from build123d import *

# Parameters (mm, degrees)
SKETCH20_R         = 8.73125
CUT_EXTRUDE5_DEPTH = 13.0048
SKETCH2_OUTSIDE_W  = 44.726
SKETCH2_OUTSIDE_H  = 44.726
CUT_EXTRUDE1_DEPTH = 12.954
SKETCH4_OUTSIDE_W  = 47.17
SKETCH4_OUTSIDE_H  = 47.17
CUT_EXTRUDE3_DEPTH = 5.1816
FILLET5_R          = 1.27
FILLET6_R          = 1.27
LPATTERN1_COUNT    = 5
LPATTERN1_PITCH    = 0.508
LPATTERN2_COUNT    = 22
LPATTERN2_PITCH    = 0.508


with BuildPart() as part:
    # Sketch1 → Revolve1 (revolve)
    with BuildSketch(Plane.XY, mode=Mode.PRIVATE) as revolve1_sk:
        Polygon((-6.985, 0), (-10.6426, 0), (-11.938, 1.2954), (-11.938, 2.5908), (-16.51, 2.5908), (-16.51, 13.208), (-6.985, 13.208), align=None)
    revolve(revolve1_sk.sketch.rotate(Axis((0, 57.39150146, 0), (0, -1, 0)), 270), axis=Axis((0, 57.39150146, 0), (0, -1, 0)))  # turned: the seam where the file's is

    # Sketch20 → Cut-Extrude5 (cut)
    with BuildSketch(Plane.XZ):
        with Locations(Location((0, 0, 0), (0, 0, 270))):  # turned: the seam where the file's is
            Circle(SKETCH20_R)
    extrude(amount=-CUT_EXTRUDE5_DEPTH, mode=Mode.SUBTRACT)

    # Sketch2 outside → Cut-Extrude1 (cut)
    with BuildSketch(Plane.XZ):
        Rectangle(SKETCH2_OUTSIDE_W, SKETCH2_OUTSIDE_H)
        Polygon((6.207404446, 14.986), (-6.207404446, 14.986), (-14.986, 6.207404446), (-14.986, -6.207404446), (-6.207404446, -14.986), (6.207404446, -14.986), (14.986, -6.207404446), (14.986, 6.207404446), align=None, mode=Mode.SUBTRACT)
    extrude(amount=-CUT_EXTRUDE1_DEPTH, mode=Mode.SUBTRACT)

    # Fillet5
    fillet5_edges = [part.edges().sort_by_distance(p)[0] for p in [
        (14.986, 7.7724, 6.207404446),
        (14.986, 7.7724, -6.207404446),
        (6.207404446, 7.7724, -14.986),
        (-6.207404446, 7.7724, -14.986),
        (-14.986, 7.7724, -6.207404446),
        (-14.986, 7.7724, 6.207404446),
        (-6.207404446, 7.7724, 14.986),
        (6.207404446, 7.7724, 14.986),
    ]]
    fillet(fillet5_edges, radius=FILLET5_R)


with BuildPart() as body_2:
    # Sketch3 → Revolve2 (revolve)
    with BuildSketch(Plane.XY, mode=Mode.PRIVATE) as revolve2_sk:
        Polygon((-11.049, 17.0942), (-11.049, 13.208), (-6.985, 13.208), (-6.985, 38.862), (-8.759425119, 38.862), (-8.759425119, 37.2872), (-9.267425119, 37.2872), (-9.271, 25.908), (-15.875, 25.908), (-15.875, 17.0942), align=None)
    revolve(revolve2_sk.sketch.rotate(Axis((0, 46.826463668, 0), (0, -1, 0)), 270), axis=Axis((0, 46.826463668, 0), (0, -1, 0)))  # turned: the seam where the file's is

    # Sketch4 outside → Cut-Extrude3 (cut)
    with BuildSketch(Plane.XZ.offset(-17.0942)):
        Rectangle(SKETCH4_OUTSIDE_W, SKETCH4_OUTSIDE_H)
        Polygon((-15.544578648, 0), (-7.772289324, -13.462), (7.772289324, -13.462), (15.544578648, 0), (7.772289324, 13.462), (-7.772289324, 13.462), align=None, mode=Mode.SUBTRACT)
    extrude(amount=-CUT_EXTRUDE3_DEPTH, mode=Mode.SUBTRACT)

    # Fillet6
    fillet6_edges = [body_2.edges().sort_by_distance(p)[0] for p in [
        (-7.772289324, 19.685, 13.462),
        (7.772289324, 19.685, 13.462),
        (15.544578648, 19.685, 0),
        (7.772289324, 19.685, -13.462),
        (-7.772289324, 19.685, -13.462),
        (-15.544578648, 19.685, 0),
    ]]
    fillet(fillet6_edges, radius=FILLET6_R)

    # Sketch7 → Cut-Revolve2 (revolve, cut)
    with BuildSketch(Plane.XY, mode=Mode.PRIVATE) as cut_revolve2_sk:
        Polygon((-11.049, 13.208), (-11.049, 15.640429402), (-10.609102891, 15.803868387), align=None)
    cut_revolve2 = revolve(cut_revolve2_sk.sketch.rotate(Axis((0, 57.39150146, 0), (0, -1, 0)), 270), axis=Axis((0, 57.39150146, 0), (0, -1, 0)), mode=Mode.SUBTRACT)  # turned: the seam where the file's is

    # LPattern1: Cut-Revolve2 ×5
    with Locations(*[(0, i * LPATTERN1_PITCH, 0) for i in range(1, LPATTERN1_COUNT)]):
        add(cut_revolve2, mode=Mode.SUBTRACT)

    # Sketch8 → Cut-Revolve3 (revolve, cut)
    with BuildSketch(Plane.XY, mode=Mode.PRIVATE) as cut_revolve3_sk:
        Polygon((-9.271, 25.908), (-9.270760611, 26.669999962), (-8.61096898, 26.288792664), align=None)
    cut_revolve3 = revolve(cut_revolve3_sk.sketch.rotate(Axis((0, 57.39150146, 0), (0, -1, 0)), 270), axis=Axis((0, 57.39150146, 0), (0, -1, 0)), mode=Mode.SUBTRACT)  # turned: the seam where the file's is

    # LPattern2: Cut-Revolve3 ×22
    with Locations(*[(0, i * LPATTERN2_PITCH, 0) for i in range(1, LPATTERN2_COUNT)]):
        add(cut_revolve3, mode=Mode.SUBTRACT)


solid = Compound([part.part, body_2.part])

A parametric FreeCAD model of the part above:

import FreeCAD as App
import Part
import Sketcher

V = App.Vector
Q = App.Units.Quantity


def edges_at(feature, points):
    """Names of the edges that pass closest to the given points."""
    edges = feature.Shape.Edges
    near = lambda p: min(range(len(edges)), key=lambda i: edges[i].distToShape(Part.Vertex(*p))[0])
    return sorted({f"Edge{near(p) + 1}" for p in points})


def add_polygon(sketch, points):
    """Adds a closed chain of lines whose ends are joined by coincident constraints."""
    first, n = sketch.GeometryCount, len(points)
    for a, b in zip(points, points[1:] + points[:1]):
        sketch.addGeometry(Part.LineSegment(App.Vector(*a, 0), App.Vector(*b, 0)), False)
    for i in range(n):
        sketch.addConstraint(Sketcher.Constraint("Coincident", first + i, 2, first + (i + 1) % n, 1))

doc = App.newDocument("Part")
body = doc.addObject("PartDesign::Body", "Body")

sketch1 = body.newObject("Sketcher::SketchObject", "Sketch")
sketch1.AttachmentSupport = (doc.getObject("XY_Plane"), [""])
sketch1.MapMode = "FlatFace"
add_polygon(sketch1, [(-10.6426, 0), (-6.985, 0), (-6.985, 13.208), (-16.51, 13.208), (-16.51, 2.5908), (-11.938, 2.5908), (-11.938, 1.2954)])
sketch1.addConstraint(Sketcher.Constraint("Horizontal", 0))
sketch1.addConstraint(Sketcher.Constraint("Vertical", 1))
sketch1.addConstraint(Sketcher.Constraint("Horizontal", 2))
sketch1.addConstraint(Sketcher.Constraint("Vertical", 3))
sketch1.addConstraint(Sketcher.Constraint("Horizontal", 4))
sketch1.addConstraint(Sketcher.Constraint("Vertical", 5))
sketch1.addConstraint(Sketcher.Constraint("PointOnObject", 0, 2, -1))
sketch1.addConstraint(Sketcher.Constraint("Angle", 6, Q("-45 deg")))
sketch1.addConstraint(Sketcher.Constraint("DistanceX", 4, 1, 4, 2, Q("0.18 in")))
sketch1.addConstraint(Sketcher.Constraint("DistanceY", 1, 1, 1, 2, Q("0.52 in")))
sketch1.addConstraint(Sketcher.Constraint("DistanceX", 0, 1, 0, 2, Q("0.144 in")))
sketch1.addConstraint(Sketcher.Constraint("DistanceX", 2, 2, 2, 1, Q("0.375 in")))
sketch1.addConstraint(Sketcher.Constraint("DistanceY", 3, 2, 3, 1, Q("0.418 in")))
sketch1.addConstraint(Sketcher.Constraint("DistanceX", 2, 2, -1, 1, Q("0.65 in")))
revolution = body.newObject("PartDesign::Revolution", "Revolution")
revolution.Profile = sketch1
revolution.ReferenceAxis = (sketch1, ["V_Axis"])
revolution.Angle = 360

sketch2 = body.newObject("Sketcher::SketchObject", "Sketch001")
sketch2.AttachmentSupport = (doc.getObject("XZ_Plane"), [""])
sketch2.MapMode = "FlatFace"
sketch2.addGeometry(Part.Circle(V(0, 0, 0), V(0, 0, 1), 8.73125), False)
sketch2.addConstraint(Sketcher.Constraint("Coincident", 0, 3, -1, 1))
sketch2.addConstraint(Sketcher.Constraint("Diameter", 0, Q("0.6875 in")))
pocket1 = body.newObject("PartDesign::Pocket", "Pocket")
pocket1.Profile = sketch2
pocket1.Length = Q("0.512 in")

sketch3 = body.newObject("Sketcher::SketchObject", "Sketch002")
sketch3.AttachmentSupport = (doc.getObject("XZ_Plane"), [""])
sketch3.MapMode = "FlatFace"
add_polygon(sketch3, [(-22.363, 22.363), (-22.363, -22.363), (22.363, -22.363), (22.363, 22.363)])
add_polygon(sketch3, [(-6.207404, 14.986), (6.207404, 14.986), (14.986, 6.207404), (14.986, -6.207404), (6.207404, -14.986), (-6.207404, -14.986), (-14.986, -6.207404), (-14.986, 6.207404)])
sketch3.addConstraint(Sketcher.Constraint("Vertical", 0))
sketch3.addConstraint(Sketcher.Constraint("Horizontal", 1))
sketch3.addConstraint(Sketcher.Constraint("Vertical", 2))
sketch3.addConstraint(Sketcher.Constraint("Horizontal", 3))
sketch3.addConstraint(Sketcher.Constraint("Horizontal", 4))
sketch3.addConstraint(Sketcher.Constraint("Vertical", 6))
sketch3.addConstraint(Sketcher.Constraint("Horizontal", 8))
sketch3.addConstraint(Sketcher.Constraint("Vertical", 10))
sketch3.addConstraint(Sketcher.Constraint("Symmetric", 0, 2, 2, 2, -1, 1))
sketch3.addConstraint(Sketcher.Constraint("Symmetric", 4, 2, 8, 2, -1, 1))
sketch3.addConstraint(Sketcher.Constraint("Symmetric", 5, 2, 9, 2, -1, 1))
sketch3.addConstraint(Sketcher.Constraint("Perpendicular", 5, 7))
sketch3.addConstraint(Sketcher.Constraint("Perpendicular", 9, 11))
sketch3.addConstraint(Sketcher.Constraint("Horizontal", 6, 2, 9, 2))
sketch3.addConstraint(Sketcher.Constraint("Horizontal", 5, 2, 10, 2))
sketch3.addConstraint(Sketcher.Constraint("Vertical", 4, 2, 7, 2))
sketch3.addConstraint(Sketcher.Constraint("Equal", 3, 0))
sketch3.addConstraint(Sketcher.Constraint("Equal", 8, 6))
sketch3.addConstraint(Sketcher.Constraint("DistanceY", -1, 1, 4, 2, Q("0.59 in")))
sketch3.addConstraint(Sketcher.Constraint("DistanceX", 1, 1, 1, 2, Q("44.726 mm")))
sketch3.addConstraint(Sketcher.Constraint("DistanceX", 4, 1, 4, 2, Q("12.414809 mm")))
pocket2 = body.newObject("PartDesign::Pocket", "Pocket001")
pocket2.Profile = sketch3
pocket2.Length = Q("0.51 in")
doc.recompute()

fillet = body.newObject("PartDesign::Fillet", "Fillet")
fillet.Base = (pocket2, edges_at(pocket2, [
    (14.986, 7.772, 6.207),
    (14.986, 7.772, -6.207),
    (6.207, 7.772, -14.986),
    (-6.207, 7.772, -14.986),
    (-14.986, 7.772, -6.207),
    (-14.986, 7.772, 6.207),
    (-6.207, 7.772, 14.986),
    (6.207, 7.772, 14.986),
]))
fillet.Radius = Q("0.05 in")
body2 = doc.addObject("PartDesign::Body", "Body001")

sketch4 = body2.newObject("Sketcher::SketchObject", "Sketch003")
sketch4.AttachmentSupport = (doc.getObject("XY_Plane001"), [""])
sketch4.MapMode = "FlatFace"
add_polygon(sketch4, [(-11.049, 17.0942), (-11.049, 13.208), (-6.985, 13.208), (-6.985, 38.862), (-8.759425, 38.862), (-8.759425, 37.2872), (-9.267425, 37.2872), (-9.271, 25.908), (-15.875, 25.908), (-15.875, 17.0942)])
sketch4.addConstraint(Sketcher.Constraint("Vertical", 0))
sketch4.addConstraint(Sketcher.Constraint("Horizontal", 1))
sketch4.addConstraint(Sketcher.Constraint("Vertical", 2))
sketch4.addConstraint(Sketcher.Constraint("Horizontal", 3))
sketch4.addConstraint(Sketcher.Constraint("Vertical", 4))
sketch4.addConstraint(Sketcher.Constraint("Horizontal", 5))
sketch4.addConstraint(Sketcher.Constraint("Horizontal", 7))
sketch4.addConstraint(Sketcher.Constraint("Vertical", 8))
sketch4.addConstraint(Sketcher.Constraint("Horizontal", 9))
sketch4.addConstraint(Sketcher.Constraint("DistanceX", 1, 1, 1, 2, Q("0.16 in")))
sketch4.addConstraint(Sketcher.Constraint("DistanceX", 5, 2, 5, 1, Q("0.02 in")))
sketch4.addConstraint(Sketcher.Constraint("DistanceX", 7, 2, 7, 1, Q("0.26 in")))
sketch4.addConstraint(Sketcher.Constraint("DistanceX", 9, 1, 9, 2, Q("0.19 in")))
sketch4.addConstraint(Sketcher.Constraint("DistanceY", 2, 1, 2, 2, Q("1.01 in")))
sketch4.addConstraint(Sketcher.Constraint("DistanceY", 0, 2, 6, 2, Q("0.5 in")))
sketch4.addConstraint(Sketcher.Constraint("DistanceY", 0, 2, 0, 1, Q("0.153 in")))
sketch4.addConstraint(Sketcher.Constraint("DistanceY", 4, 2, 4, 1, Q("0.062 in")))
sketch4.addConstraint(Sketcher.Constraint("DistanceY", -1, 1, 0, 2, Q("0.52 in")))
sketch4.addConstraint(Sketcher.Constraint("DistanceX", 0, 2, -1, 1, Q("0.435 in")))
sketch4.addConstraint(Sketcher.Constraint("DistanceX", 3, 2, 3, 1, Q("1.774425 mm")))
revolution2 = body2.newObject("PartDesign::Revolution", "Revolution001")
revolution2.Profile = sketch4
revolution2.ReferenceAxis = (sketch4, ["V_Axis"])
revolution2.Angle = 360

sketch5 = body2.newObject("Sketcher::SketchObject", "Sketch004")
sketch5.AttachmentSupport = (doc.getObject("XZ_Plane001"), [""])
sketch5.MapMode = "FlatFace"
sketch5.AttachmentOffset = App.Placement(V(0, 0, -0.673 * 25.4), App.Rotation())
add_polygon(sketch5, [(-23.585, 23.585), (-23.585, -23.585), (23.585, -23.585), (23.585, 23.585)])
add_polygon(sketch5, [(-7.772289, -13.462), (-15.544579, 0), (-7.772289, 13.462), (7.772289, 13.462), (15.544579, 0), (7.772289, -13.462)])
sketch5.addConstraint(Sketcher.Constraint("Vertical", 0))
sketch5.addConstraint(Sketcher.Constraint("Horizontal", 1))
sketch5.addConstraint(Sketcher.Constraint("Vertical", 2))
sketch5.addConstraint(Sketcher.Constraint("Horizontal", 3))
sketch5.addConstraint(Sketcher.Constraint("Horizontal", 6))
sketch5.addConstraint(Sketcher.Constraint("Horizontal", 9))
sketch5.addConstraint(Sketcher.Constraint("Symmetric", 0, 2, 2, 2, -1, 1))
sketch5.addConstraint(Sketcher.Constraint("Symmetric", 4, 2, 7, 2, -1, 1))
sketch5.addConstraint(Sketcher.Constraint("Symmetric", 5, 2, 8, 2, -1, 1))
sketch5.addConstraint(Sketcher.Constraint("PointOnObject", 4, 2, -1))
sketch5.addConstraint(Sketcher.Constraint("Parallel", 4, 7))
sketch5.addConstraint(Sketcher.Constraint("Vertical", 6, 2, 8, 2))
sketch5.addConstraint(Sketcher.Constraint("Equal", 3, 0))
sketch5.addConstraint(Sketcher.Constraint("Angle", 4, Q("120 deg")))
sketch5.addConstraint(Sketcher.Constraint("DistanceY", -1, 1, 5, 2, Q("0.53 in")))
sketch5.addConstraint(Sketcher.Constraint("DistanceX", 1, 1, 1, 2, Q("47.17 mm")))
sketch5.addConstraint(Sketcher.Constraint("DistanceX", 6, 1, 6, 2, Q("15.544579 mm")))
pocket3 = body2.newObject("PartDesign::Pocket", "Pocket002")
pocket3.Profile = sketch5
pocket3.Length = Q("0.204 in")
doc.recompute()

fillet2 = body2.newObject("PartDesign::Fillet", "Fillet001")
fillet2.Base = (pocket3, edges_at(pocket3, [
    (-7.772, 19.685, 13.462),
    (7.772, 19.685, 13.462),
    (15.545, 19.685, 0),
    (7.772, 19.685, -13.462),
    (-7.772, 19.685, -13.462),
    (-15.545, 19.685, 0),
]))
fillet2.Radius = Q("0.05 in")

sketch6 = body2.newObject("Sketcher::SketchObject", "Sketch005")
sketch6.AttachmentSupport = (doc.getObject("XY_Plane001"), [""])
sketch6.MapMode = "FlatFace"
add_polygon(sketch6, [(-11.049, 15.640429), (-11.049, 13.208), (-10.609103, 15.803868)])
sketch6.addConstraint(Sketcher.Constraint("Vertical", 0))
sketch6.addConstraint(Sketcher.Constraint("DistanceY", -1, 1, 0, 2, Q("0.52 in")))
sketch6.addConstraint(Sketcher.Constraint("DistanceX", 0, 2, -1, 1, Q("0.435 in")))
sketch6.addConstraint(Sketcher.Constraint("DistanceY", 0, 2, 0, 1, Q("2.432429 mm")))
sketch6.addConstraint(Sketcher.Constraint("DistanceY", -1, 1, 1, 2, Q("15.803868 mm")))
sketch6.addConstraint(Sketcher.Constraint("Distance", 1, Q("2.632877 mm")))
groove = body2.newObject("PartDesign::Groove", "Groove")
groove.Profile = sketch6
groove.ReferenceAxis = (sketch6, ["V_Axis"])
groove.Angle = 360
doc.recompute()

linearpattern = body2.newObject("PartDesign::LinearPattern", "LinearPattern")
linearpattern.Originals = [groove]
linearpattern.Direction = (doc.getObject("Y_Axis001"), [""])
linearpattern.Mode = "offset"
linearpattern.Offset = Q("0.02 in")
linearpattern.Occurrences = 5
body2.Tip = linearpattern

sketch7 = body2.newObject("Sketcher::SketchObject", "Sketch006")
sketch7.AttachmentSupport = (doc.getObject("XY_Plane001"), [""])
sketch7.MapMode = "FlatFace"
add_polygon(sketch7, [(-9.270761, 26.67), (-9.271, 25.908), (-8.610969, 26.288793)])
sketch7.addConstraint(Sketcher.Constraint("Equal", 0, 1))
sketch7.addConstraint(Sketcher.Constraint("Equal", 1, 2))
sketch7.addConstraint(Sketcher.Constraint("Distance", 0, Q("0.03 in")))
sketch7.addConstraint(Sketcher.Constraint("DistanceY", -1, 1, 0, 2, Q("1.02 in")))
sketch7.addConstraint(Sketcher.Constraint("DistanceX", 0, 2, -1, 1, Q("0.365 in")))
sketch7.addConstraint(Sketcher.Constraint("DistanceX", 1, 2, -1, 1, Q("8.610969 mm")))
groove2 = body2.newObject("PartDesign::Groove", "Groove001")
groove2.Profile = sketch7
groove2.ReferenceAxis = (sketch7, ["V_Axis"])
groove2.Angle = 360
doc.recompute()

linearpattern2 = body2.newObject("PartDesign::LinearPattern", "LinearPattern001")
linearpattern2.Originals = [groove2]
linearpattern2.Direction = (doc.getObject("Y_Axis001"), [""])
linearpattern2.Mode = "offset"
linearpattern2.Offset = Q("0.02 in")
linearpattern2.Occurrences = 22
body2.Tip = linearpattern2

doc.recompute()
